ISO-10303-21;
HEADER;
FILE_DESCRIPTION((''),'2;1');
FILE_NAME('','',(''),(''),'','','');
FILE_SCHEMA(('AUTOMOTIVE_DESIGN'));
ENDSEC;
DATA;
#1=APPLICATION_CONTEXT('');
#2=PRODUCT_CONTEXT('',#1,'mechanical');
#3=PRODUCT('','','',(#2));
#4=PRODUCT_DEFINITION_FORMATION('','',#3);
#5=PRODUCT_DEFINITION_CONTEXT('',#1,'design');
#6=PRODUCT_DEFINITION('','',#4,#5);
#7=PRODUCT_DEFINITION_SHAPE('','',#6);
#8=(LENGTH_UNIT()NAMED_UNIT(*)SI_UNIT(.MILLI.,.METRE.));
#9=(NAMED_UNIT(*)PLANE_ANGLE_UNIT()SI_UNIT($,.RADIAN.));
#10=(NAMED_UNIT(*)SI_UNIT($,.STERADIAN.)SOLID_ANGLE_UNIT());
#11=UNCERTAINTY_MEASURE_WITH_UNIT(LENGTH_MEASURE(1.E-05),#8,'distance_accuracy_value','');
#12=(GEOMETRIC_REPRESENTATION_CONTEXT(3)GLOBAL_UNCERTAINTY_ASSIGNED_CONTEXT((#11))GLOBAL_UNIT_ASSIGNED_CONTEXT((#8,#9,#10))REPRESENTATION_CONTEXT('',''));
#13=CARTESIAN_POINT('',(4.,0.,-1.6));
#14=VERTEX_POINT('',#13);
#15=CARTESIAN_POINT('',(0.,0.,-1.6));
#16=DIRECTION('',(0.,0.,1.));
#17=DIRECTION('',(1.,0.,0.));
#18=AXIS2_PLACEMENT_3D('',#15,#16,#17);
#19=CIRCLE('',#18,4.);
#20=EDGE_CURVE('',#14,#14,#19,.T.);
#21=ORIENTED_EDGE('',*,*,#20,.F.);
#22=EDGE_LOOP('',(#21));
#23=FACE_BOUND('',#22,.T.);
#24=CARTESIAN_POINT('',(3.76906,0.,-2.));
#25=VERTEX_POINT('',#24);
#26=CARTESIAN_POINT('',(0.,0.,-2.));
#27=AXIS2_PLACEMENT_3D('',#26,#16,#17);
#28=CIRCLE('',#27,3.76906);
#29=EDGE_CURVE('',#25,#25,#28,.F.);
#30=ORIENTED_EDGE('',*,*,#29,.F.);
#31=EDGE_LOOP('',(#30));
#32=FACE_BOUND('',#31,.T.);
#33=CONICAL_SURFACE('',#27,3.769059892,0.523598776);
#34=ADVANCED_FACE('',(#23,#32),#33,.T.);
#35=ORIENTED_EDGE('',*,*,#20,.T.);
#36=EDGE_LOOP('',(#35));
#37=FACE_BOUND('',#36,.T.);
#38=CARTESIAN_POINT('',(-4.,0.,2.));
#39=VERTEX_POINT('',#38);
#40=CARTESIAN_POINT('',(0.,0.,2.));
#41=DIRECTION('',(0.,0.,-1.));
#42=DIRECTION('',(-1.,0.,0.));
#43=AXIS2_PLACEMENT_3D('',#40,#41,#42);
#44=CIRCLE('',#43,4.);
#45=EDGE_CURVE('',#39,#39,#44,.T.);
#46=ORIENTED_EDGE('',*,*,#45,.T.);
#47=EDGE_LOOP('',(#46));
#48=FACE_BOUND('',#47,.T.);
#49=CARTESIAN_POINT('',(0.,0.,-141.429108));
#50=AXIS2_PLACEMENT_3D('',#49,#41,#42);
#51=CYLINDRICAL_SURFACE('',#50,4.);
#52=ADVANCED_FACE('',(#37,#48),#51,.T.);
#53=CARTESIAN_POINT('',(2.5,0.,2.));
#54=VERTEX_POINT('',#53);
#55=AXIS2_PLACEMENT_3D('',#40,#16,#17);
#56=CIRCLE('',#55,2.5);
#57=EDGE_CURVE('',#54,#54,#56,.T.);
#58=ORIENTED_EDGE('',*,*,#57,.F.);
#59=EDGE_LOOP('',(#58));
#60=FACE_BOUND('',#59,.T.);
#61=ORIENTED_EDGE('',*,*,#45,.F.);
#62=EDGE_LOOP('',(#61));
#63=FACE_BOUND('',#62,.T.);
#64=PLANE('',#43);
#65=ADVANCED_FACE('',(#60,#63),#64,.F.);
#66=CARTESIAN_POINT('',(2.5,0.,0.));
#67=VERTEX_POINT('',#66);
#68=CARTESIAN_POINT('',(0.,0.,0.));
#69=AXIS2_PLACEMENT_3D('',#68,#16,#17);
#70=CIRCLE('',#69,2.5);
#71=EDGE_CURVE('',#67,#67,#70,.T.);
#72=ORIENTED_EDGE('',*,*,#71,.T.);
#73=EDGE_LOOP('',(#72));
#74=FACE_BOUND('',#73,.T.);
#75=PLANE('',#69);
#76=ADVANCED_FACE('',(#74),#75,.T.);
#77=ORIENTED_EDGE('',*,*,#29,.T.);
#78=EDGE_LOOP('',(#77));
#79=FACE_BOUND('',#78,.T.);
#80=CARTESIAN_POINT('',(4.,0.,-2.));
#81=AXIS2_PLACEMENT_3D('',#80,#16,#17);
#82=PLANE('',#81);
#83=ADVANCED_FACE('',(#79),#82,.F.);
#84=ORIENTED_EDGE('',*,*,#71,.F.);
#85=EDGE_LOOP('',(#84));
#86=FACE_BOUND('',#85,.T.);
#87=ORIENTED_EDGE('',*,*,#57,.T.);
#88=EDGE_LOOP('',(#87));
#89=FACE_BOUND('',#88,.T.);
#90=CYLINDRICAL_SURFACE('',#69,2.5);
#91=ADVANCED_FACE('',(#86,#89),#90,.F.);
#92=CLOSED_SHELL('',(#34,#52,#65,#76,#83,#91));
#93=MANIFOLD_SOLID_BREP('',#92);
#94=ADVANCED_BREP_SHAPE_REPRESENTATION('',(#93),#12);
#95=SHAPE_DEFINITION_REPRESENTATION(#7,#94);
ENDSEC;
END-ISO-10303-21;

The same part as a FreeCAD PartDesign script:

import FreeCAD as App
import Part
import Sketcher
from FreeCAD import Vector
Q = App.Units.Quantity


def edges_at(feature, points):
    """Names of the edges that pass closest to the given points."""
    edges = feature.Shape.Edges
    near = lambda p: min(range(len(edges)), key=lambda i: edges[i].distToShape(Part.Vertex(*p))[0])
    return sorted({f"Edge{near(p) + 1}" for p in points})


def add_polygon(sketch, points):
    """Adds a closed chain of lines whose ends are joined by coincident constraints."""
    first, n = sketch.GeometryCount, len(points)
    for a, b in zip(points, points[1:] + points[:1]):
        sketch.addGeometry(Part.LineSegment(App.Vector(*a, 0), App.Vector(*b, 0)), False)
    for i in range(n):
        sketch.addConstraint(Sketcher.Constraint("Coincident", first + i, 2, first + (i + 1) % n, 1))

doc = App.newDocument("Part")
params = doc.addObject("Spreadsheet::Sheet", "Params")
for row, (alias, value) in enumerate([
    ("sketch1_width", "4 mm"),
    ("revolution_angle", "360 deg"),
    ("chamfer_size", "0.4 mm"),
    ("chamfer_size2", "0.23094 mm"),
    ("sketch2_diameter", "5 mm"),
    ("pocket1_length", "2 mm"),
], start=1):
    params.set(f"A{row}", alias)
    params.set(f"B{row}", "=" + value)
    params.setAlias(f"B{row}", alias)

body = doc.addObject("PartDesign::Body", "Body")

# Sketch on XZ plane
sketch1 = doc.addObject("Sketcher::SketchObject", "Sketch")
body.addObject(sketch1)
sketch1.AttachmentSupport = (doc.XZ_Plane, [""])
sketch1.MapMode = "FlatFace"
add_polygon(sketch1, [(0, -2), (0, 2), (4, 2), (4, -2)])  # lines 0-3
sketch1.addConstraint([
    Sketcher.Constraint("Vertical", 0),
    Sketcher.Constraint("Horizontal", 1),
    Sketcher.Constraint("Vertical", 2),
    Sketcher.Constraint("Horizontal", 3),
    Sketcher.Constraint("Symmetric", 0, 2, 3, 2, -1, 1),
    Sketcher.Constraint("Equal", 3, 0),
    Sketcher.Constraint("DistanceX", 1, 1, 1, 2, Q("4 mm")),
])
sketch1.setExpression("Constraints[10]", "Params.sketch1_width")
revolution = doc.addObject("PartDesign::Revolution", "Revolution")
body.addObject(revolution)
revolution.Profile = sketch1
revolution.ReferenceAxis = (sketch1, ["V_Axis"])
revolution.setExpression("Angle", "Params.revolution_angle")
doc.recompute()

chamfer = doc.addObject("PartDesign::Chamfer", "Chamfer")
body.addObject(chamfer)
chamfer.Base = (revolution, edges_at(revolution, [(-4, 0, -2)]))
chamfer.ChamferType = "Two distances"
chamfer.setExpression("Size", "Params.chamfer_size")
chamfer.setExpression("Size2", "Params.chamfer_size2")

# Sketch on XY plane
sketch2 = doc.addObject("Sketcher::SketchObject", "Sketch001")
body.addObject(sketch2)
sketch2.AttachmentSupport = (doc.XY_Plane, [""])
sketch2.MapMode = "FlatFace"
sketch2.AttachmentOffset = App.Placement(Vector(0, 0, 2), App.Rotation())
sketch2.addGeometry(Part.Circle(Vector(0, 0, 0), Vector(0, 0, 1), 2.5), False)
sketch2.addConstraint([
    Sketcher.Constraint("Coincident", 0, 3, -1, 1),
    Sketcher.Constraint("Diameter", 0, Q("5 mm")),
])
sketch2.setExpression("Constraints[1]", "Params.sketch2_diameter")
pocket1 = doc.addObject("PartDesign::Pocket", "Pocket")
body.addObject(pocket1)
pocket1.Profile = sketch2
pocket1.setExpression("Length", "Params.pocket1_length")

doc.recompute()
